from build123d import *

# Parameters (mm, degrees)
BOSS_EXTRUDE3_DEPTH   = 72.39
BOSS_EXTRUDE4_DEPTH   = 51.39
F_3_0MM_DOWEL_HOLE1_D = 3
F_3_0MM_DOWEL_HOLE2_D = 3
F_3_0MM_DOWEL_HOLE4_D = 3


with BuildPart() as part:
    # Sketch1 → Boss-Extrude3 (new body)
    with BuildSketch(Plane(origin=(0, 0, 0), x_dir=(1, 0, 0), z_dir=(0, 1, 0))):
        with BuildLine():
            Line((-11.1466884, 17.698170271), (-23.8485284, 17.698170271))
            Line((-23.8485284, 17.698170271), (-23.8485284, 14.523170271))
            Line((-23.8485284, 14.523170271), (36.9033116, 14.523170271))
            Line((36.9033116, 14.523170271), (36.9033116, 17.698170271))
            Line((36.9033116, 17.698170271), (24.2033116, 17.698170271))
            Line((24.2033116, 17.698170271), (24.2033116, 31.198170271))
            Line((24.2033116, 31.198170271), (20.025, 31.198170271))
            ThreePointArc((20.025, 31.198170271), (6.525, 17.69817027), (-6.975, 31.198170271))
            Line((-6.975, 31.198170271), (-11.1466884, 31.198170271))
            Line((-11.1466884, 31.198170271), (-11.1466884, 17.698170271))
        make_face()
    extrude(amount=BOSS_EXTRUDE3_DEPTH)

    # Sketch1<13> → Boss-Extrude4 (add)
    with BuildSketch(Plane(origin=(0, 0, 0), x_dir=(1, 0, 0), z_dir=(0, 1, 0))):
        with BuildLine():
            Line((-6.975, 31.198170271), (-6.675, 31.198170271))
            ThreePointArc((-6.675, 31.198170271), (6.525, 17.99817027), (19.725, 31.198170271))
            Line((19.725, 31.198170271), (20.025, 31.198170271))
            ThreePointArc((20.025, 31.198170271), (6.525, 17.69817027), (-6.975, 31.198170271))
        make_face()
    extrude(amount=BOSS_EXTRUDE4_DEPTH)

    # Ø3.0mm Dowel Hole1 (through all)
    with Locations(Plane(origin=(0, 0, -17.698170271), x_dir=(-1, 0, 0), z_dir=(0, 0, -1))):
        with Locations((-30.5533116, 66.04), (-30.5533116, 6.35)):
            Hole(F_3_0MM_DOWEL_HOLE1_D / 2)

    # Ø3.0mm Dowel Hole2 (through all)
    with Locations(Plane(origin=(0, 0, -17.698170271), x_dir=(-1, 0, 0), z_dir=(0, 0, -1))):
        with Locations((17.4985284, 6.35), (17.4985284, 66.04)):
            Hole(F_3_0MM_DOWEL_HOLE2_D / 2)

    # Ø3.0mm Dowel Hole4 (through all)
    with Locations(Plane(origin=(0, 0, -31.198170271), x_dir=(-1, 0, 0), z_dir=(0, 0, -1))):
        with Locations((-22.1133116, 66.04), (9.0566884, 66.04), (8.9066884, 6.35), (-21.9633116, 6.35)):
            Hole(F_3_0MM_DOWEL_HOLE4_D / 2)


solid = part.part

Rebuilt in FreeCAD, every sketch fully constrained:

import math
import FreeCAD as App
import Part
import Sketcher
from FreeCAD import Vector

doc = App.newDocument("Part")
body = doc.addObject("PartDesign::Body", "Body")

# Sketch on XZ plane
sketch1 = body.newObject("Sketcher::SketchObject", "Sketch")
sketch1.AttachmentSupport = (doc.getObject("XZ_Plane"), [""])
sketch1.MapMode = "FlatFace"
sketch1.addGeometry(Part.LineSegment(Vector(-11.1, -17.7, 0), Vector(-23.8, -17.7, 0)), False)
sketch1.addGeometry(Part.LineSegment(Vector(-23.8, -17.7, 0), Vector(-23.8, -14.5, 0)), False)
sketch1.addGeometry(Part.LineSegment(Vector(-23.8, -14.5, 0), Vector(36.9, -14.5, 0)), False)
sketch1.addGeometry(Part.LineSegment(Vector(36.9, -14.5, 0), Vector(36.9, -17.7, 0)), False)
sketch1.addGeometry(Part.LineSegment(Vector(36.9, -17.7, 0), Vector(24.2, -17.7, 0)), False)
sketch1.addGeometry(Part.LineSegment(Vector(24.2, -17.7, 0), Vector(24.2, -31.2, 0)), False)
sketch1.addGeometry(Part.LineSegment(Vector(24.2, -31.2, 0), Vector(20, -31.2, 0)), False)
sketch1.addGeometry(Part.ArcOfCircle(Part.Circle(Vector(6.5, -31.2, 0), Vector(0, 0, 1), 13.5), math.radians(0), math.radians(180)), False)
sketch1.addGeometry(Part.LineSegment(Vector(-7, -31.2, 0), Vector(-11.1, -31.2, 0)), False)
sketch1.addGeometry(Part.LineSegment(Vector(-11.1, -31.2, 0), Vector(-11.1, -17.7, 0)), False)
sketch1.addConstraint(Sketcher.Constraint("Coincident", 0, 2, 1, 1))
sketch1.addConstraint(Sketcher.Constraint("Coincident", 1, 2, 2, 1))
sketch1.addConstraint(Sketcher.Constraint("Coincident", 2, 2, 3, 1))
sketch1.addConstraint(Sketcher.Constraint("Coincident", 3, 2, 4, 1))
sketch1.addConstraint(Sketcher.Constraint("Coincident", 4, 2, 5, 1))
sketch1.addConstraint(Sketcher.Constraint("Coincident", 5, 2, 6, 1))
sketch1.addConstraint(Sketcher.Constraint("Coincident", 6, 2, 7, 1))
sketch1.addConstraint(Sketcher.Constraint("Coincident", 7, 2, 8, 1))
sketch1.addConstraint(Sketcher.Constraint("Coincident", 8, 2, 9, 1))
sketch1.addConstraint(Sketcher.Constraint("Coincident", 9, 2, 0, 1))
sketch1.addConstraint(Sketcher.Constraint("Horizontal", 0))
sketch1.addConstraint(Sketcher.Constraint("Vertical", 1))
sketch1.addConstraint(Sketcher.Constraint("Horizontal", 2))
sketch1.addConstraint(Sketcher.Constraint("Vertical", 3))
sketch1.addConstraint(Sketcher.Constraint("Horizontal", 4))
sketch1.addConstraint(Sketcher.Constraint("Vertical", 5))
sketch1.addConstraint(Sketcher.Constraint("Horizontal", 6))
sketch1.addConstraint(Sketcher.Constraint("Horizontal", 8))
sketch1.addConstraint(Sketcher.Constraint("Vertical", 9))
sketch1.addConstraint(Sketcher.Constraint("Horizontal", 0, 2, 3, 2))
sketch1.addConstraint(Sketcher.Constraint("Horizontal", 7, 3, 5, 2))
sketch1.addConstraint(Sketcher.Constraint("Horizontal", 6, 2, 7, 2))
sketch1.addConstraint(Sketcher.Constraint("Radius", 7, 13.5))
sketch1.addConstraint(Sketcher.Constraint("DistanceX", 4, 2, 4, 1, 12.7))
sketch1.addConstraint(Sketcher.Constraint("DistanceY", 5, 2, 5, 1, 13.5))
sketch1.addConstraint(Sketcher.Constraint("DistanceY", 1, 1, 1, 2, 3.175))
sketch1.addConstraint(Sketcher.Constraint("DistanceX", -1, 1, 7, 3, 6.525))
sketch1.addConstraint(Sketcher.Constraint("DistanceX", 0, 2, 0, 1, 12.70184))
sketch1.addConstraint(Sketcher.Constraint("DistanceX", 2, 1, 2, 2, 60.75184))
sketch1.addConstraint(Sketcher.Constraint("DistanceX", 6, 2, 6, 1, 4.178312))
sketch1.addConstraint(Sketcher.Constraint("DistanceY", 7, 3, -1, 1, 31.19817))
pad1 = body.newObject("PartDesign::Pad", "Pad")
pad1.Profile = sketch1
pad1.Length = 72.39
pad1.Reversed = True

# Sketch on XZ plane
sketch2 = body.newObject("Sketcher::SketchObject", "Sketch001")
sketch2.AttachmentSupport = (doc.getObject("XZ_Plane"), [""])
sketch2.MapMode = "FlatFace"
sketch2.addGeometry(Part.LineSegment(Vector(-6.67, -31.2, 0), Vector(-6.97, -31.2, 0)), False)
sketch2.addGeometry(Part.ArcOfCircle(Part.Circle(Vector(6.53, -31.2, 0), Vector(0, 0, 1), 13.5), math.radians(0), math.radians(180)), False)
sketch2.addGeometry(Part.LineSegment(Vector(20.02, -31.2, 0), Vector(19.73, -31.2, 0)), False)
sketch2.addGeometry(Part.ArcOfCircle(Part.Circle(Vector(6.53, -31.2, 0), Vector(0, 0, 1), 13.2), math.radians(0), math.radians(180)), False)
sketch2.addConstraint(Sketcher.Constraint("Coincident", 0, 2, 1, 2))
sketch2.addConstraint(Sketcher.Constraint("Coincident", 1, 1, 2, 1))
sketch2.addConstraint(Sketcher.Constraint("Coincident", 2, 2, 3, 1))
sketch2.addConstraint(Sketcher.Constraint("Coincident", 3, 2, 0, 1))
sketch2.addConstraint(Sketcher.Constraint("Horizontal", 0))
sketch2.addConstraint(Sketcher.Constraint("Horizontal", 2))
sketch2.addConstraint(Sketcher.Constraint("Coincident", 3, 3, 1, 3))
sketch2.addConstraint(Sketcher.Constraint("Horizontal", 3, 3, 0, 2))
sketch2.addConstraint(Sketcher.Constraint("Horizontal", 0, 2, 1, 1))
sketch2.addConstraint(Sketcher.Constraint("Radius", 1, 13.5))
sketch2.addConstraint(Sketcher.Constraint("Radius", 3, 13.2))
sketch2.addConstraint(Sketcher.Constraint("DistanceX", -1, 1, 1, 3, 6.525))
sketch2.addConstraint(Sketcher.Constraint("DistanceY", 1, 3, -1, 1, 31.19817))
pad2 = body.newObject("PartDesign::Pad", "Pad001")
pad2.Profile = sketch2
pad2.Length = 51.39
pad2.Reversed = True

# Sketch on XY plane
sketch3 = body.newObject("Sketcher::SketchObject", "Sketch002")
sketch3.AttachmentSupport = (doc.getObject("XY_Plane"), [""])
sketch3.MapMode = "FlatFace"
sketch3.AttachmentOffset = App.Placement(Vector(0, 0, -17.69817), App.Rotation())
sketch3.addGeometry(Part.Circle(Vector(30.6, 66, 0), Vector(0, 0, 1), 1.5), False)
sketch3.addGeometry(Part.Circle(Vector(30.6, 6.3, 0), Vector(0, 0, 1), 1.5), False)
sketch3.addConstraint(Sketcher.Constraint("Equal", 0, 1))
sketch3.addConstraint(Sketcher.Constraint("Vertical", 0, 3, 1, 3))
sketch3.addConstraint(Sketcher.Constraint("Diameter", 0, 3.0))
sketch3.addConstraint(Sketcher.Constraint("DistanceY", -1, 1, 0, 3, 66.04))
sketch3.addConstraint(Sketcher.Constraint("DistanceY", -1, 1, 1, 3, 6.35))
sketch3.addConstraint(Sketcher.Constraint("DistanceX", -1, 1, 0, 3, 30.553312))
doc.recompute()
hole = body.newObject("PartDesign::Hole", "Hole")
hole.Profile = sketch3
hole.ThreadType = "None"
hole.Diameter = 3
hole.DepthType = "ThroughAll"
hole.Reversed = True

# Sketch on XY plane
sketch4 = body.newObject("Sketcher::SketchObject", "Sketch003")
sketch4.AttachmentSupport = (doc.getObject("XY_Plane"), [""])
sketch4.MapMode = "FlatFace"
sketch4.AttachmentOffset = App.Placement(Vector(0, 0, -17.69817), App.Rotation())
sketch4.addGeometry(Part.Circle(Vector(-17.5, 6.3, 0), Vector(0, 0, 1), 1.5), False)
sketch4.addGeometry(Part.Circle(Vector(-17.5, 66, 0), Vector(0, 0, 1), 1.5), False)
sketch4.addConstraint(Sketcher.Constraint("Equal", 0, 1))
sketch4.addConstraint(Sketcher.Constraint("Vertical", 0, 3, 1, 3))
sketch4.addConstraint(Sketcher.Constraint("Diameter", 0, 3.0))
sketch4.addConstraint(Sketcher.Constraint("DistanceY", -1, 1, 0, 3, 6.35))
sketch4.addConstraint(Sketcher.Constraint("DistanceY", -1, 1, 1, 3, 66.04))
sketch4.addConstraint(Sketcher.Constraint("DistanceX", 0, 3, -1, 1, 17.498528))
doc.recompute()
hole2 = body.newObject("PartDesign::Hole", "Hole001")
hole2.Profile = sketch4
hole2.ThreadType = "None"
hole2.Diameter = 3
hole2.DepthType = "ThroughAll"
hole2.Reversed = True

# Sketch on XY plane
sketch5 = body.newObject("Sketcher::SketchObject", "Sketch004")
sketch5.AttachmentSupport = (doc.getObject("XY_Plane"), [""])
sketch5.MapMode = "FlatFace"
sketch5.AttachmentOffset = App.Placement(Vector(0, 0, -31.19817), App.Rotation())
sketch5.addGeometry(Part.Circle(Vector(22.1, 66, 0), Vector(0, 0, 1), 1.5), False)
sketch5.addGeometry(Part.Circle(Vector(-9.1, 66, 0), Vector(0, 0, 1), 1.5), False)
sketch5.addGeometry(Part.Circle(Vector(-8.9, 6.3, 0), Vector(0, 0, 1), 1.5), False)
sketch5.addGeometry(Part.Circle(Vector(22, 6.3, 0), Vector(0, 0, 1), 1.5), False)
sketch5.addConstraint(Sketcher.Constraint("Equal", 0, 1))
sketch5.addConstraint(Sketcher.Constraint("Equal", 1, 2))
sketch5.addConstraint(Sketcher.Constraint("Equal", 2, 3))
sketch5.addConstraint(Sketcher.Constraint("Horizontal", 0, 3, 1, 3))
sketch5.addConstraint(Sketcher.Constraint("Horizontal", 2, 3, 3, 3))
sketch5.addConstraint(Sketcher.Constraint("Diameter", 0, 3.0))
sketch5.addConstraint(Sketcher.Constraint("DistanceY", -1, 1, 0, 3, 66.04))
sketch5.addConstraint(Sketcher.Constraint("DistanceY", -1, 1, 2, 3, 6.35))
sketch5.addConstraint(Sketcher.Constraint("DistanceX", 1, 3, 0, 3, 31.17))
sketch5.addConstraint(Sketcher.Constraint("DistanceX", 1, 3, 2, 3, 0.15))
sketch5.addConstraint(Sketcher.Constraint("DistanceX", 2, 3, 3, 3, 30.87))
sketch5.addConstraint(Sketcher.Constraint("DistanceX", -1, 1, 0, 3, 22.113312))
doc.recompute()
hole3 = body.newObject("PartDesign::Hole", "Hole002")
hole3.Profile = sketch5
hole3.ThreadType = "None"
hole3.Diameter = 3
hole3.DepthType = "ThroughAll"
hole3.Reversed = True

doc.recompute()
